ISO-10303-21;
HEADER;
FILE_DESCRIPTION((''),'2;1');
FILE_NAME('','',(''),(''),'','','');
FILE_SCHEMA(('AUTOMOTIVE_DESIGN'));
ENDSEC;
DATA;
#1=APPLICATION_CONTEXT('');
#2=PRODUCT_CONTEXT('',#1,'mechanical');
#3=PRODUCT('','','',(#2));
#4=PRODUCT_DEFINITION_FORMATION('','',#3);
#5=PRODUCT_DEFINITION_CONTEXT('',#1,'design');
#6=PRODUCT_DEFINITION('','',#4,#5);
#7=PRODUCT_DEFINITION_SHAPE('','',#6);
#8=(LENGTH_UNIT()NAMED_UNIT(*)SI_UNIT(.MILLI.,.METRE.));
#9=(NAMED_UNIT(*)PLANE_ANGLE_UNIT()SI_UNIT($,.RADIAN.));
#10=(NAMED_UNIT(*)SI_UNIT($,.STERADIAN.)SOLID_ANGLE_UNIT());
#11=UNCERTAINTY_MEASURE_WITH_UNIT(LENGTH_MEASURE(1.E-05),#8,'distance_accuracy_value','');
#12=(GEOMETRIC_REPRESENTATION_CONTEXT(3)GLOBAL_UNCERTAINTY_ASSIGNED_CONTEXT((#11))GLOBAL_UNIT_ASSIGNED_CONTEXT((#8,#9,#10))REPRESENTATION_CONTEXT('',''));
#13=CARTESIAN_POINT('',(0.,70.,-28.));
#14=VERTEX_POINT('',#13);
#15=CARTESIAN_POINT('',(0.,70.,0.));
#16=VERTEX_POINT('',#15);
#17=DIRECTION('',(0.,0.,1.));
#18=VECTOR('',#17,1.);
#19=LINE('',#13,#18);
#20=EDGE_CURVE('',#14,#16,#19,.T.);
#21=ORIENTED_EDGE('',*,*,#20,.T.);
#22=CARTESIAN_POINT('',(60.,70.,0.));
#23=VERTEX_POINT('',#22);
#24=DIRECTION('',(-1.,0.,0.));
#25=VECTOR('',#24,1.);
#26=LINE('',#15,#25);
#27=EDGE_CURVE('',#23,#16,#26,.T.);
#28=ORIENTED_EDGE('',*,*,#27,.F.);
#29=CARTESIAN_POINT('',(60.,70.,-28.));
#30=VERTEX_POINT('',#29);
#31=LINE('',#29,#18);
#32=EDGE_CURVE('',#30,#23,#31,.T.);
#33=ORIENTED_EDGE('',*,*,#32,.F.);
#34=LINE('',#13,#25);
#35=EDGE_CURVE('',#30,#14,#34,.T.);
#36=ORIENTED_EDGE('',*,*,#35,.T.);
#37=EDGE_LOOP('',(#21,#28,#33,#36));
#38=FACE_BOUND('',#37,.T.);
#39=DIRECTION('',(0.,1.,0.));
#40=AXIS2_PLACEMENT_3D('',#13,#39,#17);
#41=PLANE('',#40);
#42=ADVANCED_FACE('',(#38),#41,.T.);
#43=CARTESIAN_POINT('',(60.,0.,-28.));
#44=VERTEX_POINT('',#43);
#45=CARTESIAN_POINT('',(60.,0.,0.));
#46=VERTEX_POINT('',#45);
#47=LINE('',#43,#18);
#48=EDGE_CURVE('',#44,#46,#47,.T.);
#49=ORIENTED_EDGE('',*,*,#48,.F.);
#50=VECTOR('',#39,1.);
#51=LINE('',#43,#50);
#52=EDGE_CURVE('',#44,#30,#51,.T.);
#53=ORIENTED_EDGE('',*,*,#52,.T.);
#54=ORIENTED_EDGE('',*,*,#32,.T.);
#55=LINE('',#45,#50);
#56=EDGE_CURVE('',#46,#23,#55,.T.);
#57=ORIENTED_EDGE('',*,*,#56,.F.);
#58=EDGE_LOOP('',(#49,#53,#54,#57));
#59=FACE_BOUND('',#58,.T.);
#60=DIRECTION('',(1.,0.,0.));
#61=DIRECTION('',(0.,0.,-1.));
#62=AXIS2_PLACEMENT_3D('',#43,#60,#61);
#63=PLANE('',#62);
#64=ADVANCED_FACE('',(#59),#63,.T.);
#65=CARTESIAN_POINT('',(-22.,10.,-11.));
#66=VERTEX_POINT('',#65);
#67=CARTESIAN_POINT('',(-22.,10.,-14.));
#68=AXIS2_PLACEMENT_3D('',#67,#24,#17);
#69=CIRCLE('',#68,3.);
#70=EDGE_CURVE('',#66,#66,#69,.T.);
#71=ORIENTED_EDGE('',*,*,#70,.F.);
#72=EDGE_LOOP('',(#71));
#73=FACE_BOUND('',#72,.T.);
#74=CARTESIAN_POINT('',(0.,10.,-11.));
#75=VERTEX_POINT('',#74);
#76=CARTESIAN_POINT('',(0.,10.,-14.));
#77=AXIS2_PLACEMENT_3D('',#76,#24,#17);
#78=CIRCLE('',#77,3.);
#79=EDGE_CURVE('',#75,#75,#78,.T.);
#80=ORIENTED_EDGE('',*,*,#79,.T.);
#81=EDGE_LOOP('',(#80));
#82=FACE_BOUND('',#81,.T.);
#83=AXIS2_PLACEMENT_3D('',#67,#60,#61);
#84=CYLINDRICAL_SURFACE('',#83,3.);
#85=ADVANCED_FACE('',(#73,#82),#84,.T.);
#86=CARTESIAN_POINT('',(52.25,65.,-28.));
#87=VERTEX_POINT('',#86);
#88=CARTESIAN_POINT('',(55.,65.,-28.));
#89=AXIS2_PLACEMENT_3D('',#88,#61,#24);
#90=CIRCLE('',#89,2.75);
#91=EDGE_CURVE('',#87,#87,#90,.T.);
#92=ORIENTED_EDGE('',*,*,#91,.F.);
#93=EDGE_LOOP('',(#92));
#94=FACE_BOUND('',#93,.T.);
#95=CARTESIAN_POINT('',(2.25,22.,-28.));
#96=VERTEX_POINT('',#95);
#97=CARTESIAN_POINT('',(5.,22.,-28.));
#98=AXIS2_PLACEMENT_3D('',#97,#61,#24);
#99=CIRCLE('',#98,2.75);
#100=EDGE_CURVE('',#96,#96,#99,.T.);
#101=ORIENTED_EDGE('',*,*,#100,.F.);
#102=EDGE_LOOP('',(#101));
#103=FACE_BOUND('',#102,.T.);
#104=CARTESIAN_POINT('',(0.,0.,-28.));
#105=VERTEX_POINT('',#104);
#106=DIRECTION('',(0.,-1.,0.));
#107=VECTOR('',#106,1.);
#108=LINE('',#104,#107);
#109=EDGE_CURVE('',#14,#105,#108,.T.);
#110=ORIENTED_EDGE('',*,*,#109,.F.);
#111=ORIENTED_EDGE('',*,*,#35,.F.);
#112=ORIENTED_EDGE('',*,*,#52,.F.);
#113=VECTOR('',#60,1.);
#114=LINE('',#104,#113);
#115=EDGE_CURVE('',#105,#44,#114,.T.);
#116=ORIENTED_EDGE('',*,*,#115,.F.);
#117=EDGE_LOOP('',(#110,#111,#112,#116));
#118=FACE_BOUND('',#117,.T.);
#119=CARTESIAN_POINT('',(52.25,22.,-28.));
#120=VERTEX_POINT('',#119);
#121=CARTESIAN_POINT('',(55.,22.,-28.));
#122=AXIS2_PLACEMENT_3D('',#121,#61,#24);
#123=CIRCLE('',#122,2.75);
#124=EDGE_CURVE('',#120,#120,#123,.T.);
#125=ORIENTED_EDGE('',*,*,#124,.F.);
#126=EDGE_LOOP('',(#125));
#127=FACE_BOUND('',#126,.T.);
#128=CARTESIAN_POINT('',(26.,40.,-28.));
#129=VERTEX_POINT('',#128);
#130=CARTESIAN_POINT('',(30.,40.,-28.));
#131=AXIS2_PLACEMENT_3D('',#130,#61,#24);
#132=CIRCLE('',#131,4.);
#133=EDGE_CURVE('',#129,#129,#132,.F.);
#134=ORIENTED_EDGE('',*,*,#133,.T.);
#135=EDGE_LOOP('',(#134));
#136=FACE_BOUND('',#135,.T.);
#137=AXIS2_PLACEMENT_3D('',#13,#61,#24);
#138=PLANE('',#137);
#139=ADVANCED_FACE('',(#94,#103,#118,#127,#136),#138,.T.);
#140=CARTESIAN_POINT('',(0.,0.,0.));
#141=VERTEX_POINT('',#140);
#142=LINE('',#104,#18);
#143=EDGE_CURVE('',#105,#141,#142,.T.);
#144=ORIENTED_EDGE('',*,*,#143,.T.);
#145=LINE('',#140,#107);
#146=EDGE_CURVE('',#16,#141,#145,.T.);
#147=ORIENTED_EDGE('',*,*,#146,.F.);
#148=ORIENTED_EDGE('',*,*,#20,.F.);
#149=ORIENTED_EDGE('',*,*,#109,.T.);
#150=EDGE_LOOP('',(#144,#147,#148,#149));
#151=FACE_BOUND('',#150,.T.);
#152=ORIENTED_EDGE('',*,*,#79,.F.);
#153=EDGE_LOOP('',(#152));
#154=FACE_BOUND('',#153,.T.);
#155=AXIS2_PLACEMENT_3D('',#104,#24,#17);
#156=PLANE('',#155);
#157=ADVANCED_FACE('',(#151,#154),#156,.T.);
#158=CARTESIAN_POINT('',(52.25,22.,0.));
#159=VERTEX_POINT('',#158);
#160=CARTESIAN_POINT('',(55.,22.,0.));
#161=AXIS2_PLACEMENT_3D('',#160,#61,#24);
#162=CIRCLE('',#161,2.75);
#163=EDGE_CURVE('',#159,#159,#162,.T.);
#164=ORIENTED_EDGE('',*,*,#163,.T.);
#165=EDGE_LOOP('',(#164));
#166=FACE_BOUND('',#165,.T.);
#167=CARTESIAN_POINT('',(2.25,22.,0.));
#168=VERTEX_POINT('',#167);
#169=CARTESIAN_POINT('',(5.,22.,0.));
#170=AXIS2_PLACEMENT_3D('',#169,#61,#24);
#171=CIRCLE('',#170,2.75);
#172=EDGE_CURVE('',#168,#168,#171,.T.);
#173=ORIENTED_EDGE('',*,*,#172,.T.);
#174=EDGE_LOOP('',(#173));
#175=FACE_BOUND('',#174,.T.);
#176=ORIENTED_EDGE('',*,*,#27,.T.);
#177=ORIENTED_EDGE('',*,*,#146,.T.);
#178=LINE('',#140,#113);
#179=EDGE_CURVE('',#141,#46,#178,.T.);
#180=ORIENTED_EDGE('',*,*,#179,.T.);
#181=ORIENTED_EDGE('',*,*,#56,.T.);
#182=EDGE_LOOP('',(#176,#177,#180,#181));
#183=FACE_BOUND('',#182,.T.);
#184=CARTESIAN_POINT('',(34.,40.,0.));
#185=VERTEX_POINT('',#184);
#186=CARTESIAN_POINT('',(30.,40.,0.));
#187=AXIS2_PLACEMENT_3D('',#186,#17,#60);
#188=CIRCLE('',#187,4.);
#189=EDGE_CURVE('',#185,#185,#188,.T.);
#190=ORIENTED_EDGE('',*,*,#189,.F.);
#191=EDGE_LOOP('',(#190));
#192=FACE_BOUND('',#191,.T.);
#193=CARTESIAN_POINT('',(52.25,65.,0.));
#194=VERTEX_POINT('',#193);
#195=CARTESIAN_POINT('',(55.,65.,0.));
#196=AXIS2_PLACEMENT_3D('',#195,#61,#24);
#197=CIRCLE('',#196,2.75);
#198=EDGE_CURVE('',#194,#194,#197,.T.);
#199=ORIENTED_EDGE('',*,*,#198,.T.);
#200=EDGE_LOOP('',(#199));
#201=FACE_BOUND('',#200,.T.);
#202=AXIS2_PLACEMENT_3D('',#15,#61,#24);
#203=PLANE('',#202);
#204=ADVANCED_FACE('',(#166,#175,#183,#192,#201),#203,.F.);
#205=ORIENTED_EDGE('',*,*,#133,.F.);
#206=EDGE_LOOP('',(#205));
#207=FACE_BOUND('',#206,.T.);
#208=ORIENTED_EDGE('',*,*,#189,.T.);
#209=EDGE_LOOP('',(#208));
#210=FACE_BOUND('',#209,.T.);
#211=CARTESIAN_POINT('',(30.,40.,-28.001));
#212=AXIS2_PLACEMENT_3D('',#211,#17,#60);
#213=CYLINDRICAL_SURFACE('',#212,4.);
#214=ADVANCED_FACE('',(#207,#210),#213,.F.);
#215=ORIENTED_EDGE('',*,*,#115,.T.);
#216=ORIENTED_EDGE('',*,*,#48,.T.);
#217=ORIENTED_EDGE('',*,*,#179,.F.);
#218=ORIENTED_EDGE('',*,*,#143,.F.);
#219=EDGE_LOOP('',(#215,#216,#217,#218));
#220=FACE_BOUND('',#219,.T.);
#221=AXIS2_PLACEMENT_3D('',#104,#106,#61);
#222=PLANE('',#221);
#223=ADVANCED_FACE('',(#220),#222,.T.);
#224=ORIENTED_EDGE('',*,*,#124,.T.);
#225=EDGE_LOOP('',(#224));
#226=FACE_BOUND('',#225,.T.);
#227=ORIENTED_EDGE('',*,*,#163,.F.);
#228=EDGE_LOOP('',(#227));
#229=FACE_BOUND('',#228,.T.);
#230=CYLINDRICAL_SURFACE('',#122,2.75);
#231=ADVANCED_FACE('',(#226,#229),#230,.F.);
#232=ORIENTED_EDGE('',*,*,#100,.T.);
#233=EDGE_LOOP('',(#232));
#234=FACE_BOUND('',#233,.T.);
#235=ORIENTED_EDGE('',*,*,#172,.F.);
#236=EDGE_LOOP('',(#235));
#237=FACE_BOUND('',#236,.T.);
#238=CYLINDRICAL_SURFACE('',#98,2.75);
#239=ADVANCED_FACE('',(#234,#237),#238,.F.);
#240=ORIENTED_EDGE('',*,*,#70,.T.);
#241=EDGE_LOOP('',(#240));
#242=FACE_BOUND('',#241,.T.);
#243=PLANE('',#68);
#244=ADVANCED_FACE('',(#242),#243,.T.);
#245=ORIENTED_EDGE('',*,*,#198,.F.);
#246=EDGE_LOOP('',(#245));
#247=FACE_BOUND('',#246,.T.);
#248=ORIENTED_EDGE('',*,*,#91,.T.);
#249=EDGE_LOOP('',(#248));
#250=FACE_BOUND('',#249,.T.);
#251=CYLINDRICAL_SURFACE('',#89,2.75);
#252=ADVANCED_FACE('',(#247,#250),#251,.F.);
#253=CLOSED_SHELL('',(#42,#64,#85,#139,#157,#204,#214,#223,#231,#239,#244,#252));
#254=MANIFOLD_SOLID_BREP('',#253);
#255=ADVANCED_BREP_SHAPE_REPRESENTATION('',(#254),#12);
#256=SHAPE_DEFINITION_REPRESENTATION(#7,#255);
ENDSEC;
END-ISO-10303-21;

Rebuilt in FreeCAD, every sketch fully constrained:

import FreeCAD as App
import Part
import Sketcher
Q = App.Units.Quantity

doc = App.newDocument("Part")
body = doc.addObject("PartDesign::Body", "Body")

sketch1 = doc.addObject("Sketcher::SketchObject", "Sketch")
body.addObject(sketch1)
sketch1.AttachmentSupport = (doc.XY_Plane, [""])
sketch1.MapMode = "FlatFace"
sketch1.addGeometry([
    Part.LineSegment(App.Vector(0, 70, 0), App.Vector(0, 0, 0)),
    Part.LineSegment(App.Vector(0, 0, 0), App.Vector(60, 0, 0)),
    Part.LineSegment(App.Vector(60, 0, 0), App.Vector(60, 70, 0)),
    Part.LineSegment(App.Vector(60, 70, 0), App.Vector(0, 70, 0)),
], False)
sketch1.addConstraint([
    Sketcher.Constraint("Coincident", 0, 2, 1, 1),
    Sketcher.Constraint("Coincident", 1, 2, 2, 1),
    Sketcher.Constraint("Coincident", 2, 2, 3, 1),
    Sketcher.Constraint("Coincident", 3, 2, 0, 1),
    Sketcher.Constraint("Vertical", 0),
    Sketcher.Constraint("Horizontal", 1),
    Sketcher.Constraint("Vertical", 2),
    Sketcher.Constraint("Horizontal", 3),
    Sketcher.Constraint("Coincident", 0, 2, -1, 1),
    Sketcher.Constraint("DistanceX", 1, 1, 1, 2, Q("60 mm")),
    Sketcher.Constraint("DistanceY", 0, 2, 0, 1, Q("70 mm")),
])
pad1 = doc.addObject("PartDesign::Pad", "Pad")
body.addObject(pad1)
pad1.Profile = sketch1
pad1.Length = 28
pad1.Reversed = True

sketch2 = doc.addObject("Sketcher::SketchObject", "Sketch001")
body.addObject(sketch2)
sketch2.AttachmentSupport = (doc.YZ_Plane, [""])
sketch2.MapMode = "FlatFace"
sketch2.addGeometry(Part.Circle(App.Vector(10, -14, 0), App.Vector(0, 0, 1), 3), False)
sketch2.addConstraint([
    Sketcher.Constraint("Diameter", 0, Q("6 mm")),
    Sketcher.Constraint("DistanceX", -1, 1, 0, 3, Q("10 mm")),
    Sketcher.Constraint("DistanceY", 0, 3, -1, 1, Q("14 mm")),
])
pad2 = doc.addObject("PartDesign::Pad", "Pad001")
body.addObject(pad2)
pad2.Profile = sketch2
pad2.Length = 22
pad2.Reversed = True

sketch3 = doc.addObject("Sketcher::SketchObject", "Sketch002")
body.addObject(sketch3)
sketch3.AttachmentSupport = (doc.XY_Plane, [""])
sketch3.MapMode = "FlatFace"
sketch3.addGeometry(Part.Circle(App.Vector(30, 40, 0), App.Vector(0, 0, 1), 4), False)
sketch3.addConstraint([
    Sketcher.Constraint("Diameter", 0, Q("8 mm")),
    Sketcher.Constraint("DistanceX", -1, 1, 0, 3, Q("30 mm")),
    Sketcher.Constraint("DistanceY", -1, 1, 0, 3, Q("40 mm")),
])
pocket1 = doc.addObject("PartDesign::Pocket", "Pocket")
body.addObject(pocket1)
pocket1.Profile = sketch3
pocket1.Type = "UpToFirst"

sketch4 = doc.addObject("Sketcher::SketchObject", "Sketch003")
body.addObject(sketch4)
sketch4.AttachmentSupport = (doc.XY_Plane, [""])
sketch4.MapMode = "FlatFace"
sketch4.AttachmentOffset = App.Placement(App.Vector(0, 0, -28), App.Rotation())
sketch4.addGeometry([
    Part.Circle(App.Vector(55, 22, 0), App.Vector(0, 0, 1), 2.75),
    Part.Circle(App.Vector(55, 65, 0), App.Vector(0, 0, 1), 2.75),
    Part.Circle(App.Vector(5, 22, 0), App.Vector(0, 0, 1), 2.75),
], False)
sketch4.addConstraint([
    Sketcher.Constraint("Equal", 0, 1),
    Sketcher.Constraint("Equal", 1, 2),
    Sketcher.Constraint("Horizontal", 0, 3, 2, 3),
    Sketcher.Constraint("Vertical", 0, 3, 1, 3),
    Sketcher.Constraint("Diameter", 0, Q("5.5 mm")),
    Sketcher.Constraint("DistanceX", -1, 1, 0, 3, Q("55 mm")),
    Sketcher.Constraint("DistanceY", -1, 1, 0, 3, Q("22 mm")),
    Sketcher.Constraint("DistanceY", -1, 1, 1, 3, Q("65 mm")),
    Sketcher.Constraint("DistanceX", -1, 1, 2, 3, Q("5 mm")),
])
doc.recompute()
hole = doc.addObject("PartDesign::Hole", "Hole")
body.addObject(hole)
hole.Profile = sketch4
hole.ThreadType = "None"
hole.Diameter = 5.5
hole.DepthType = "ThroughAll"
hole.Reversed = True

doc.recompute()
